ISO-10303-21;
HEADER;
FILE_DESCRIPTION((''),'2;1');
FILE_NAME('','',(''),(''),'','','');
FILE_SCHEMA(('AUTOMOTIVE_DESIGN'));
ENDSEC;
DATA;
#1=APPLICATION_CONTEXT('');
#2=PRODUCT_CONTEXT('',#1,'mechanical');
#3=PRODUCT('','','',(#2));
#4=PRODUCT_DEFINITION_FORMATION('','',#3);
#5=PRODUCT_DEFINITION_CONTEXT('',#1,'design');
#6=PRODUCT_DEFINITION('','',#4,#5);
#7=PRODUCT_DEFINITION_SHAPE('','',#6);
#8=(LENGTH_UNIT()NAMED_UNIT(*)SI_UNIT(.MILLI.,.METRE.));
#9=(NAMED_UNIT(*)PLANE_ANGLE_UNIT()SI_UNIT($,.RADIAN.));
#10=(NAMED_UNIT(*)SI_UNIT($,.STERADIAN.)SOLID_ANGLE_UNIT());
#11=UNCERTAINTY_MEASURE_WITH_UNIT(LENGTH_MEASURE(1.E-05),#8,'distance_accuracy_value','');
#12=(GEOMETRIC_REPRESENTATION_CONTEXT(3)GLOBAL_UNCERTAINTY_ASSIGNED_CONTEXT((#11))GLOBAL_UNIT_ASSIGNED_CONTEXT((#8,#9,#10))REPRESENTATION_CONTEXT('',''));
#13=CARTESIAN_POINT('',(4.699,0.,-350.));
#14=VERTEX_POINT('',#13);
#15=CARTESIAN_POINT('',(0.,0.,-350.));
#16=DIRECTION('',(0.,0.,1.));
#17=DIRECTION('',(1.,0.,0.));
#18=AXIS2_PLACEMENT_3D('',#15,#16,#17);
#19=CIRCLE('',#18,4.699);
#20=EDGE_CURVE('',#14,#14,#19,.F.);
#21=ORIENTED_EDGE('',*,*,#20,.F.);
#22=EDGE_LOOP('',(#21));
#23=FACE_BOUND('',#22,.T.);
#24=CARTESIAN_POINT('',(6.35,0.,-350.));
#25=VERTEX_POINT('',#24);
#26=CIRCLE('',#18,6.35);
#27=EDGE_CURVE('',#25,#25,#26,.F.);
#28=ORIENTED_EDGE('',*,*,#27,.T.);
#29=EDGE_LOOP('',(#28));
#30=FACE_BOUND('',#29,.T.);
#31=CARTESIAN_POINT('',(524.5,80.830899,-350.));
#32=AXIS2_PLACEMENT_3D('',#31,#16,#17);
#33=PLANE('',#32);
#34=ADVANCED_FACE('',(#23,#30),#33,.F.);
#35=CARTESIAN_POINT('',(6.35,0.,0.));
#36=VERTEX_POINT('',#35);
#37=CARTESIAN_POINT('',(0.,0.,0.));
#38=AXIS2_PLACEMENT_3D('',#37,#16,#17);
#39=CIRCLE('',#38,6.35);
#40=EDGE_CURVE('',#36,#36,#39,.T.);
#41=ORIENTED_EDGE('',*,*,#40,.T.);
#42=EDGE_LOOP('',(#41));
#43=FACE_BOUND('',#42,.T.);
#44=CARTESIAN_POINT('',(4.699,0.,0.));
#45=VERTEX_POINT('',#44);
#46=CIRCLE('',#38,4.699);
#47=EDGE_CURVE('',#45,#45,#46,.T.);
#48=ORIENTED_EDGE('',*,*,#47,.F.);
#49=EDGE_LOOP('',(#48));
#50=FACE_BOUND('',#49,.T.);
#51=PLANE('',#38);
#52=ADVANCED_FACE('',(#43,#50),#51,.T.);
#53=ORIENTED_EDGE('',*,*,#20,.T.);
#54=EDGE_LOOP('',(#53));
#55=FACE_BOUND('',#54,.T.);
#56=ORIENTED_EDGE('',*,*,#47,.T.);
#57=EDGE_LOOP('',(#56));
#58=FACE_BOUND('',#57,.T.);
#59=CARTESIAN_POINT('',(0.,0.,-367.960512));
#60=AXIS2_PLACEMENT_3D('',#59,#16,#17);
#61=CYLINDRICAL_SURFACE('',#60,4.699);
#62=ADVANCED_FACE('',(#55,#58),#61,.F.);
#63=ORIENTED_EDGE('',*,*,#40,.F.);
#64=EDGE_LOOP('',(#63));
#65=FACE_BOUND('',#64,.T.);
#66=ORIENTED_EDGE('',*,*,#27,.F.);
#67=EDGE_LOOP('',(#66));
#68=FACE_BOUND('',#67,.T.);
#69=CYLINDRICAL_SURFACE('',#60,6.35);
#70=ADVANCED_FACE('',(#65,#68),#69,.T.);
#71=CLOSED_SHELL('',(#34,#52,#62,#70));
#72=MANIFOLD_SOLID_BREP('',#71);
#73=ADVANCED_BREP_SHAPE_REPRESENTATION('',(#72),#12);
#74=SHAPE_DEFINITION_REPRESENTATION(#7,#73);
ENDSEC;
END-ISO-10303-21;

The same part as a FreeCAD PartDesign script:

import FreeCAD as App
import Part
import Sketcher
Q = App.Units.Quantity

doc = App.newDocument("Part")
body = doc.addObject("PartDesign::Body", "Body")

# Sketch on XY plane
sketch1 = body.newObject("Sketcher::SketchObject", "Sketch")
sketch1.AttachmentSupport = (doc.getObject("XY_Plane"), [""])
sketch1.MapMode = "FlatFace"
sketch1.addGeometry([
    Part.Circle(App.Vector(0, 0, 0), App.Vector(0, 0, 1), 6.35),
    Part.Circle(App.Vector(0, 0, 0), App.Vector(0, 0, 1), 4.699),
], False)
sketch1.addConstraint([
    Sketcher.Constraint("Coincident", 0, 3, -1, 1),
    Sketcher.Constraint("Coincident", 1, 3, -1, 1),
    Sketcher.Constraint("Diameter", 0, Q("0.5 in")),
    Sketcher.Constraint("Diameter", 1, Q("0.37 in")),
])
pad1 = body.newObject("PartDesign::Pad", "Pad")
pad1.Profile = sketch1
pad1.Length = 350
pad1.Reversed = True

doc.recompute()
